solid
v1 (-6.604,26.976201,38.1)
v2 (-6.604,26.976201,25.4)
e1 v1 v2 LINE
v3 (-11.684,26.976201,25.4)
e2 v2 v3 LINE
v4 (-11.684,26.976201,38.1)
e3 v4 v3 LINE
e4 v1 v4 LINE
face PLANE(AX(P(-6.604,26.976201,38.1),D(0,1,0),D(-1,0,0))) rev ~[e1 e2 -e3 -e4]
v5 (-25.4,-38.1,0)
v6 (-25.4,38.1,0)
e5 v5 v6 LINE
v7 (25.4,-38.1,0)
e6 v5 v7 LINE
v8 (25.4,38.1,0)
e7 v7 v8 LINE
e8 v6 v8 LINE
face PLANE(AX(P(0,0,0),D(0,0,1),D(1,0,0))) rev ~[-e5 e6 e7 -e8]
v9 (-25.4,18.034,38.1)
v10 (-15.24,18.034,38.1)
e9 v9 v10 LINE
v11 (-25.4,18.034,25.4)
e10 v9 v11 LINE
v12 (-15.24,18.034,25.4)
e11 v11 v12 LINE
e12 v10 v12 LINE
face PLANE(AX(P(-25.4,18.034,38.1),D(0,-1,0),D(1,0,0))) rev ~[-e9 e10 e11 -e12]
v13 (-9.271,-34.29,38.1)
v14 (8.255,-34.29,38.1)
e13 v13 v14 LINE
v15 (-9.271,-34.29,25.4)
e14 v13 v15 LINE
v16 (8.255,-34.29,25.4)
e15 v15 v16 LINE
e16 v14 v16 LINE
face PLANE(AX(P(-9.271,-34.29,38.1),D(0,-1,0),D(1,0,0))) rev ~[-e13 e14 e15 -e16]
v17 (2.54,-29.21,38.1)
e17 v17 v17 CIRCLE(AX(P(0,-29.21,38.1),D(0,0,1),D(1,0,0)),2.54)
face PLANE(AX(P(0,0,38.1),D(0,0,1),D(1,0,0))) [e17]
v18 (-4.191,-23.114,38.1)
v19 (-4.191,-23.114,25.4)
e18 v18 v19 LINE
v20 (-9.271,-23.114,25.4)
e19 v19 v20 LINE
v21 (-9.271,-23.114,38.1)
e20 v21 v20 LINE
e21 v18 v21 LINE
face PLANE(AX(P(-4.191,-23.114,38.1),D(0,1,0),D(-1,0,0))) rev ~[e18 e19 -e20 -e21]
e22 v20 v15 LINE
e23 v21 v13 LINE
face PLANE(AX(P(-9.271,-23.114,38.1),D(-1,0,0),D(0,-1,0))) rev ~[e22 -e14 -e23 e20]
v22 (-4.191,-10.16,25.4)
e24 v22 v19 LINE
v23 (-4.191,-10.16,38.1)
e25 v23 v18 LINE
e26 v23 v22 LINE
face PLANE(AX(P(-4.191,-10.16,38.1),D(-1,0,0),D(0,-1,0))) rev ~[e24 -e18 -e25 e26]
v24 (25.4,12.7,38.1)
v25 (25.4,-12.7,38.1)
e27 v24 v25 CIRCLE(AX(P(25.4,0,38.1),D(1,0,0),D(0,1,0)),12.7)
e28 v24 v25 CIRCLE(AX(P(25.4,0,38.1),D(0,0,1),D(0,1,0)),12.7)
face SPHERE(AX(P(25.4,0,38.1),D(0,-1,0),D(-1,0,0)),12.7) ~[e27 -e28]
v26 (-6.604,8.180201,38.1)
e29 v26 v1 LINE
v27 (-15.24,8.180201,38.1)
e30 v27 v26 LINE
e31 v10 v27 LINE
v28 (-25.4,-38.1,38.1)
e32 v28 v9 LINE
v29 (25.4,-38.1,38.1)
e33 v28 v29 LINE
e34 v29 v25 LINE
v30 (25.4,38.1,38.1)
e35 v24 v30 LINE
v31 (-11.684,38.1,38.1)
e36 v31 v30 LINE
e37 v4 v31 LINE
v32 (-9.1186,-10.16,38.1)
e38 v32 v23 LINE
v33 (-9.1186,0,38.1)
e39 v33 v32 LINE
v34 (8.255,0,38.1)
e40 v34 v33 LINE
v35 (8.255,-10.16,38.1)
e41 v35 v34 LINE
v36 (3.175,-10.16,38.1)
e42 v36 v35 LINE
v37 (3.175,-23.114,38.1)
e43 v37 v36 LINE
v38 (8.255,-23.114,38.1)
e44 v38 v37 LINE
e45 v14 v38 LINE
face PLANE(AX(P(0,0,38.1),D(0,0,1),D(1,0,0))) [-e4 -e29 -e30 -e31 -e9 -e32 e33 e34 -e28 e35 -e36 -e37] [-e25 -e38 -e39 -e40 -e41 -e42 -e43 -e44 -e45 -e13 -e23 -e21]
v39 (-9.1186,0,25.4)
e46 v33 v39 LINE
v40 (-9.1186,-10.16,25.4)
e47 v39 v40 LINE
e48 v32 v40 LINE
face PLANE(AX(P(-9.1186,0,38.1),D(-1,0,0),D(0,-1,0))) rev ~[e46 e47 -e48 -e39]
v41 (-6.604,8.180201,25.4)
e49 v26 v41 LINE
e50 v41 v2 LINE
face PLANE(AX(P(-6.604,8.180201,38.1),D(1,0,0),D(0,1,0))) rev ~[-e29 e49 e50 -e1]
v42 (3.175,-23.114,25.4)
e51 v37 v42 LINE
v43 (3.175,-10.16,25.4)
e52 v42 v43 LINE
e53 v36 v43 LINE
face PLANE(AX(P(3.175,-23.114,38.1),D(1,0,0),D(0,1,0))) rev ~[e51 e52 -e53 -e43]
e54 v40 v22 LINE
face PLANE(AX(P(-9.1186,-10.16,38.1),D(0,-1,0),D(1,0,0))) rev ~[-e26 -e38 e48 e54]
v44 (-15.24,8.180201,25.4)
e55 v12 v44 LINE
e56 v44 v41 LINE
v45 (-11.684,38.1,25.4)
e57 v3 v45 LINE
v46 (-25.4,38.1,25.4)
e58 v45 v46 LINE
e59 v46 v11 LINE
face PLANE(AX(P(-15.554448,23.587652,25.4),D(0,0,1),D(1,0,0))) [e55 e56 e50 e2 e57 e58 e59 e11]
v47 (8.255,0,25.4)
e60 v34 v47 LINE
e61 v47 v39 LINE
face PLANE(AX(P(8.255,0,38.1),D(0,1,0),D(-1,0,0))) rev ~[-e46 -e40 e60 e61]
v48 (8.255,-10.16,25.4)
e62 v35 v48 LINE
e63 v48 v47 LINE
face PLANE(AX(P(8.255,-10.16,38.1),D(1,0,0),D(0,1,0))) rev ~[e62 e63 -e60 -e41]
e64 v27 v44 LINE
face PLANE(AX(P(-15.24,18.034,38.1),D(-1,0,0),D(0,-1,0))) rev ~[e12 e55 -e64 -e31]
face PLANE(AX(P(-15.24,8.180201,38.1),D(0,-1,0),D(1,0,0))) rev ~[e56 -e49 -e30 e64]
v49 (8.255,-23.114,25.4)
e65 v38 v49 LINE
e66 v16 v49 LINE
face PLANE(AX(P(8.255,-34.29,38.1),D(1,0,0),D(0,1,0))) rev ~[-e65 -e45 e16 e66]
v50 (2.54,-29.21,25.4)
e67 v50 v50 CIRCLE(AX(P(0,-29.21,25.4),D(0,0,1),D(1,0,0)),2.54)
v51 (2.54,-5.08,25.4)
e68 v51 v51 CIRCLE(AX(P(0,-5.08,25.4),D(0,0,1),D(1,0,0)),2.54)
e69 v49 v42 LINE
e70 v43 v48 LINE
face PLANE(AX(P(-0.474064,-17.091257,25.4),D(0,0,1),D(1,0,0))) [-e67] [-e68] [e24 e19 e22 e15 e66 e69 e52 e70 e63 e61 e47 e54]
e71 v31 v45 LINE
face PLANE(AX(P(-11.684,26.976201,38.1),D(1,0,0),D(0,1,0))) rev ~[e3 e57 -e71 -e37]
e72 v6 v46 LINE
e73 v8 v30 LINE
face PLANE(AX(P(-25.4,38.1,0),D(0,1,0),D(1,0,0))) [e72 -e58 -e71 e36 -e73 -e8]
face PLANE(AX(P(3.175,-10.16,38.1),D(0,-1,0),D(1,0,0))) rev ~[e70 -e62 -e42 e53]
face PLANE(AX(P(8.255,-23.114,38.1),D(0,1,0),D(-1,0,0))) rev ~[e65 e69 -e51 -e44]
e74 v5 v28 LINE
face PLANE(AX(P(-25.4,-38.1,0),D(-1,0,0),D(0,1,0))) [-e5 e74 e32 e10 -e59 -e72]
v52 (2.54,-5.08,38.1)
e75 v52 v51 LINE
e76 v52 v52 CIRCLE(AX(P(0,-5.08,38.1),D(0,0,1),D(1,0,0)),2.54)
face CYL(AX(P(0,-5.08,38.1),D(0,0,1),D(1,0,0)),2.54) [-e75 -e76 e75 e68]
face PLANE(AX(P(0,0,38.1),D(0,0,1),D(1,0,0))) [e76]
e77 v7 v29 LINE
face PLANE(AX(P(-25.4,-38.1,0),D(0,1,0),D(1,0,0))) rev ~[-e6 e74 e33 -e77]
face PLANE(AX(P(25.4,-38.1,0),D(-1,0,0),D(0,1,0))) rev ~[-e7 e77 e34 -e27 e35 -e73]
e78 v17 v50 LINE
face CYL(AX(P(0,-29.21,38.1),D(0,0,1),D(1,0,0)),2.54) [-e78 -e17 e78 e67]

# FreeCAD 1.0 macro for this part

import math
import FreeCAD as App
import Part
import Sketcher
from FreeCAD import Vector
Q = App.Units.Quantity


def add_polygon(sketch, points):
    """Adds a closed chain of lines whose ends are joined by coincident constraints."""
    first, n = sketch.GeometryCount, len(points)
    for a, b in zip(points, points[1:] + points[:1]):
        sketch.addGeometry(Part.LineSegment(App.Vector(*a, 0), App.Vector(*b, 0)), False)
    for i in range(n):
        sketch.addConstraint(Sketcher.Constraint("Coincident", first + i, 2, first + (i + 1) % n, 1))

doc = App.newDocument("Part")
body = doc.addObject("PartDesign::Body", "Body")

# Sketch on XY plane
sketch1 = body.newObject("Sketcher::SketchObject", "Sketch")
sketch1.AttachmentSupport = (doc.getObject("XY_Plane"), [""])
sketch1.MapMode = "FlatFace"
add_polygon(sketch1, [(-25, 38), (-25, -38), (25, -38), (25, 38)])  # lines 0-3
sketch1.addConstraint([
    Sketcher.Constraint("Vertical", 0),
    Sketcher.Constraint("Horizontal", 1),
    Sketcher.Constraint("Vertical", 2),
    Sketcher.Constraint("Horizontal", 3),
    Sketcher.Constraint("Symmetric", 0, 2, 2, 2, -1, 1),
    Sketcher.Constraint("DistanceX", 1, 1, 1, 2, Q("2 in")),
    Sketcher.Constraint("DistanceY", 0, 2, 0, 1, Q("3 in")),
])
pad1 = body.newObject("PartDesign::Pad", "Pad")
pad1.Profile = sketch1
pad1.Length = Q("1.5 in")

# Sketch on XY plane
sketch2 = body.newObject("Sketcher::SketchObject", "Sketch001")
sketch2.AttachmentSupport = (doc.getObject("XY_Plane"), [""])
sketch2.MapMode = "FlatFace"
sketch2.AttachmentOffset = App.Placement(Vector(0, 0, 1.5 * 25.4), App.Rotation())
sketch2.addGeometry([
    Part.LineSegment(Vector(25, -13, 0), Vector(25, 13, 0)),
    Part.ArcOfCircle(Part.Circle(Vector(25, 0, 0), Vector(0, 0, 1), 13), math.radians(90), math.radians(270)),
], False)
sketch2.addGeometry(Part.LineSegment(Vector(25, -13, 0), Vector(25, 13, 0)), True)  # axis
sketch2.addConstraint([
    Sketcher.Constraint("Coincident", 0, 1, 1, 2),
    Sketcher.Constraint("Coincident", 1, 1, 0, 2),
    Sketcher.Constraint("Vertical", 0),
    Sketcher.Constraint("Vertical", 2),
    Sketcher.Constraint("Coincident", 2, 1, 0, 1),
    Sketcher.Constraint("PointOnObject", 1, 3, -1),
    Sketcher.Constraint("Vertical", 1, 3, 0, 1),
    Sketcher.Constraint("Equal", 0, 2),
    Sketcher.Constraint("Radius", 1, Q("0.5 in")),
    Sketcher.Constraint("DistanceX", -1, 1, 1, 3, Q("1 in")),
])
revolution = body.newObject("PartDesign::Revolution", "Revolution")
revolution.Profile = sketch2
revolution.ReferenceAxis = (sketch2, ["Axis0"])
revolution.Angle = 90

# Sketch on XY plane
sketch3 = body.newObject("Sketcher::SketchObject", "Sketch002")
sketch3.AttachmentSupport = (doc.getObject("XY_Plane"), [""])
sketch3.MapMode = "FlatFace"
sketch3.AttachmentOffset = App.Placement(Vector(0, 0, 1.5 * 25.4), App.Rotation())
add_polygon(sketch3, [(-12, 38), (-25, 38), (-25, 18), (-15, 18), (-15, 8), (-7, 8), (-7, 27), (-12, 27)])  # lines 0-7
sketch3.addConstraint([
    Sketcher.Constraint("Horizontal", 0),
    Sketcher.Constraint("Vertical", 1),
    Sketcher.Constraint("Horizontal", 2),
    Sketcher.Constraint("Vertical", 3),
    Sketcher.Constraint("Horizontal", 4),
    Sketcher.Constraint("Vertical", 5),
    Sketcher.Constraint("Horizontal", 6),
    Sketcher.Constraint("Vertical", 7),
    Sketcher.Constraint("DistanceX", 2, 1, 2, 2, Q("0.4 in")),
    Sketcher.Constraint("DistanceX", 6, 2, 6, 1, Q("0.2 in")),
    Sketcher.Constraint("DistanceX", 0, 2, -1, 1, Q("1 in")),
    Sketcher.Constraint("DistanceX", 0, 2, 0, 1, Q("0.54 in")),
    Sketcher.Constraint("DistanceY", 1, 2, 1, 1, Q("0.79 in")),
    Sketcher.Constraint("DistanceY", 5, 1, 5, 2, Q("0.74 in")),
    Sketcher.Constraint("DistanceY", -1, 1, 0, 2, Q("1.5 in")),
    Sketcher.Constraint("DistanceY", 3, 2, 3, 1, Q("9.853799 mm")),
])
pocket1 = body.newObject("PartDesign::Pocket", "Pocket")
pocket1.Profile = sketch3
pocket1.Length = Q("0.5 in")

# Sketch on XY plane
sketch4 = body.newObject("Sketcher::SketchObject", "Sketch003")
sketch4.AttachmentSupport = (doc.getObject("XY_Plane"), [""])
sketch4.MapMode = "FlatFace"
sketch4.AttachmentOffset = App.Placement(Vector(0, 0, 1.5 * 25.4), App.Rotation())
add_polygon(sketch4, [(-9.3, -23.1), (-9.3, -34.3), (8.3, -34.3), (8.3, -23.1), (3.2, -23.1), (3.2, -10.2), (8.3, -10.2), (8.3, 0), (-9.1, 0), (-9.1, -10.2), (-4.2, -10.2), (-4.2, -23.1)])  # lines 0-11
sketch4.addGeometry(Part.Circle(Vector(0, -29.2, 0), Vector(0, 0, 1), 2.5), False)  # 12
sketch4.addGeometry(Part.Circle(Vector(0, -5.1, 0), Vector(0, 0, 1), 2.5), False)  # 13
sketch4.addConstraint([
    Sketcher.Constraint("Vertical", 0),
    Sketcher.Constraint("Horizontal", 1),
    Sketcher.Constraint("Vertical", 2),
    Sketcher.Constraint("Horizontal", 3),
    Sketcher.Constraint("Vertical", 4),
    Sketcher.Constraint("Horizontal", 5),
    Sketcher.Constraint("Vertical", 6),
    Sketcher.Constraint("Horizontal", 7),
    Sketcher.Constraint("Vertical", 8),
    Sketcher.Constraint("Horizontal", 9),
    Sketcher.Constraint("Vertical", 10),
    Sketcher.Constraint("Horizontal", 11),
    Sketcher.Constraint("Equal", 12, 13),
    Sketcher.Constraint("PointOnObject", 12, 3, -2),
    Sketcher.Constraint("PointOnObject", 13, 3, -2),
    Sketcher.Constraint("PointOnObject", 6, 2, -1),
    Sketcher.Constraint("Horizontal", 5, 2, 8, 2),
    Sketcher.Constraint("Horizontal", 3, 2, 10, 2),
    Sketcher.Constraint("Vertical", 2, 2, 5, 2),
    Sketcher.Constraint("Equal", 5, 11),
    Sketcher.Constraint("Diameter", 12, Q("0.2 in")),
    Sketcher.Constraint("DistanceX", 3, 2, 3, 1, Q("0.2 in")),
    Sketcher.Constraint("DistanceY", 6, 1, 6, 2, Q("0.4 in")),
    Sketcher.Constraint("DistanceX", 1, 1, 1, 2, Q("0.69 in")),
    Sketcher.Constraint("DistanceY", 0, 2, 0, 1, Q("0.44 in")),
    Sketcher.Constraint("DistanceY", 4, 1, 4, 2, Q("0.51 in")),
    Sketcher.Constraint("DistanceY", 13, 3, -1, 1, Q("0.2 in")),
    Sketcher.Constraint("DistanceY", 0, 2, 12, 3, Q("0.2 in")),
    Sketcher.Constraint("DistanceX", 7, 2, 7, 1, Q("0.684 in")),
    Sketcher.Constraint("DistanceX", 0, 2, -1, 1, Q("0.365 in")),
])
pocket2 = body.newObject("PartDesign::Pocket", "Pocket001")
pocket2.Profile = sketch4
pocket2.Length = Q("0.5 in")

doc.recompute()
